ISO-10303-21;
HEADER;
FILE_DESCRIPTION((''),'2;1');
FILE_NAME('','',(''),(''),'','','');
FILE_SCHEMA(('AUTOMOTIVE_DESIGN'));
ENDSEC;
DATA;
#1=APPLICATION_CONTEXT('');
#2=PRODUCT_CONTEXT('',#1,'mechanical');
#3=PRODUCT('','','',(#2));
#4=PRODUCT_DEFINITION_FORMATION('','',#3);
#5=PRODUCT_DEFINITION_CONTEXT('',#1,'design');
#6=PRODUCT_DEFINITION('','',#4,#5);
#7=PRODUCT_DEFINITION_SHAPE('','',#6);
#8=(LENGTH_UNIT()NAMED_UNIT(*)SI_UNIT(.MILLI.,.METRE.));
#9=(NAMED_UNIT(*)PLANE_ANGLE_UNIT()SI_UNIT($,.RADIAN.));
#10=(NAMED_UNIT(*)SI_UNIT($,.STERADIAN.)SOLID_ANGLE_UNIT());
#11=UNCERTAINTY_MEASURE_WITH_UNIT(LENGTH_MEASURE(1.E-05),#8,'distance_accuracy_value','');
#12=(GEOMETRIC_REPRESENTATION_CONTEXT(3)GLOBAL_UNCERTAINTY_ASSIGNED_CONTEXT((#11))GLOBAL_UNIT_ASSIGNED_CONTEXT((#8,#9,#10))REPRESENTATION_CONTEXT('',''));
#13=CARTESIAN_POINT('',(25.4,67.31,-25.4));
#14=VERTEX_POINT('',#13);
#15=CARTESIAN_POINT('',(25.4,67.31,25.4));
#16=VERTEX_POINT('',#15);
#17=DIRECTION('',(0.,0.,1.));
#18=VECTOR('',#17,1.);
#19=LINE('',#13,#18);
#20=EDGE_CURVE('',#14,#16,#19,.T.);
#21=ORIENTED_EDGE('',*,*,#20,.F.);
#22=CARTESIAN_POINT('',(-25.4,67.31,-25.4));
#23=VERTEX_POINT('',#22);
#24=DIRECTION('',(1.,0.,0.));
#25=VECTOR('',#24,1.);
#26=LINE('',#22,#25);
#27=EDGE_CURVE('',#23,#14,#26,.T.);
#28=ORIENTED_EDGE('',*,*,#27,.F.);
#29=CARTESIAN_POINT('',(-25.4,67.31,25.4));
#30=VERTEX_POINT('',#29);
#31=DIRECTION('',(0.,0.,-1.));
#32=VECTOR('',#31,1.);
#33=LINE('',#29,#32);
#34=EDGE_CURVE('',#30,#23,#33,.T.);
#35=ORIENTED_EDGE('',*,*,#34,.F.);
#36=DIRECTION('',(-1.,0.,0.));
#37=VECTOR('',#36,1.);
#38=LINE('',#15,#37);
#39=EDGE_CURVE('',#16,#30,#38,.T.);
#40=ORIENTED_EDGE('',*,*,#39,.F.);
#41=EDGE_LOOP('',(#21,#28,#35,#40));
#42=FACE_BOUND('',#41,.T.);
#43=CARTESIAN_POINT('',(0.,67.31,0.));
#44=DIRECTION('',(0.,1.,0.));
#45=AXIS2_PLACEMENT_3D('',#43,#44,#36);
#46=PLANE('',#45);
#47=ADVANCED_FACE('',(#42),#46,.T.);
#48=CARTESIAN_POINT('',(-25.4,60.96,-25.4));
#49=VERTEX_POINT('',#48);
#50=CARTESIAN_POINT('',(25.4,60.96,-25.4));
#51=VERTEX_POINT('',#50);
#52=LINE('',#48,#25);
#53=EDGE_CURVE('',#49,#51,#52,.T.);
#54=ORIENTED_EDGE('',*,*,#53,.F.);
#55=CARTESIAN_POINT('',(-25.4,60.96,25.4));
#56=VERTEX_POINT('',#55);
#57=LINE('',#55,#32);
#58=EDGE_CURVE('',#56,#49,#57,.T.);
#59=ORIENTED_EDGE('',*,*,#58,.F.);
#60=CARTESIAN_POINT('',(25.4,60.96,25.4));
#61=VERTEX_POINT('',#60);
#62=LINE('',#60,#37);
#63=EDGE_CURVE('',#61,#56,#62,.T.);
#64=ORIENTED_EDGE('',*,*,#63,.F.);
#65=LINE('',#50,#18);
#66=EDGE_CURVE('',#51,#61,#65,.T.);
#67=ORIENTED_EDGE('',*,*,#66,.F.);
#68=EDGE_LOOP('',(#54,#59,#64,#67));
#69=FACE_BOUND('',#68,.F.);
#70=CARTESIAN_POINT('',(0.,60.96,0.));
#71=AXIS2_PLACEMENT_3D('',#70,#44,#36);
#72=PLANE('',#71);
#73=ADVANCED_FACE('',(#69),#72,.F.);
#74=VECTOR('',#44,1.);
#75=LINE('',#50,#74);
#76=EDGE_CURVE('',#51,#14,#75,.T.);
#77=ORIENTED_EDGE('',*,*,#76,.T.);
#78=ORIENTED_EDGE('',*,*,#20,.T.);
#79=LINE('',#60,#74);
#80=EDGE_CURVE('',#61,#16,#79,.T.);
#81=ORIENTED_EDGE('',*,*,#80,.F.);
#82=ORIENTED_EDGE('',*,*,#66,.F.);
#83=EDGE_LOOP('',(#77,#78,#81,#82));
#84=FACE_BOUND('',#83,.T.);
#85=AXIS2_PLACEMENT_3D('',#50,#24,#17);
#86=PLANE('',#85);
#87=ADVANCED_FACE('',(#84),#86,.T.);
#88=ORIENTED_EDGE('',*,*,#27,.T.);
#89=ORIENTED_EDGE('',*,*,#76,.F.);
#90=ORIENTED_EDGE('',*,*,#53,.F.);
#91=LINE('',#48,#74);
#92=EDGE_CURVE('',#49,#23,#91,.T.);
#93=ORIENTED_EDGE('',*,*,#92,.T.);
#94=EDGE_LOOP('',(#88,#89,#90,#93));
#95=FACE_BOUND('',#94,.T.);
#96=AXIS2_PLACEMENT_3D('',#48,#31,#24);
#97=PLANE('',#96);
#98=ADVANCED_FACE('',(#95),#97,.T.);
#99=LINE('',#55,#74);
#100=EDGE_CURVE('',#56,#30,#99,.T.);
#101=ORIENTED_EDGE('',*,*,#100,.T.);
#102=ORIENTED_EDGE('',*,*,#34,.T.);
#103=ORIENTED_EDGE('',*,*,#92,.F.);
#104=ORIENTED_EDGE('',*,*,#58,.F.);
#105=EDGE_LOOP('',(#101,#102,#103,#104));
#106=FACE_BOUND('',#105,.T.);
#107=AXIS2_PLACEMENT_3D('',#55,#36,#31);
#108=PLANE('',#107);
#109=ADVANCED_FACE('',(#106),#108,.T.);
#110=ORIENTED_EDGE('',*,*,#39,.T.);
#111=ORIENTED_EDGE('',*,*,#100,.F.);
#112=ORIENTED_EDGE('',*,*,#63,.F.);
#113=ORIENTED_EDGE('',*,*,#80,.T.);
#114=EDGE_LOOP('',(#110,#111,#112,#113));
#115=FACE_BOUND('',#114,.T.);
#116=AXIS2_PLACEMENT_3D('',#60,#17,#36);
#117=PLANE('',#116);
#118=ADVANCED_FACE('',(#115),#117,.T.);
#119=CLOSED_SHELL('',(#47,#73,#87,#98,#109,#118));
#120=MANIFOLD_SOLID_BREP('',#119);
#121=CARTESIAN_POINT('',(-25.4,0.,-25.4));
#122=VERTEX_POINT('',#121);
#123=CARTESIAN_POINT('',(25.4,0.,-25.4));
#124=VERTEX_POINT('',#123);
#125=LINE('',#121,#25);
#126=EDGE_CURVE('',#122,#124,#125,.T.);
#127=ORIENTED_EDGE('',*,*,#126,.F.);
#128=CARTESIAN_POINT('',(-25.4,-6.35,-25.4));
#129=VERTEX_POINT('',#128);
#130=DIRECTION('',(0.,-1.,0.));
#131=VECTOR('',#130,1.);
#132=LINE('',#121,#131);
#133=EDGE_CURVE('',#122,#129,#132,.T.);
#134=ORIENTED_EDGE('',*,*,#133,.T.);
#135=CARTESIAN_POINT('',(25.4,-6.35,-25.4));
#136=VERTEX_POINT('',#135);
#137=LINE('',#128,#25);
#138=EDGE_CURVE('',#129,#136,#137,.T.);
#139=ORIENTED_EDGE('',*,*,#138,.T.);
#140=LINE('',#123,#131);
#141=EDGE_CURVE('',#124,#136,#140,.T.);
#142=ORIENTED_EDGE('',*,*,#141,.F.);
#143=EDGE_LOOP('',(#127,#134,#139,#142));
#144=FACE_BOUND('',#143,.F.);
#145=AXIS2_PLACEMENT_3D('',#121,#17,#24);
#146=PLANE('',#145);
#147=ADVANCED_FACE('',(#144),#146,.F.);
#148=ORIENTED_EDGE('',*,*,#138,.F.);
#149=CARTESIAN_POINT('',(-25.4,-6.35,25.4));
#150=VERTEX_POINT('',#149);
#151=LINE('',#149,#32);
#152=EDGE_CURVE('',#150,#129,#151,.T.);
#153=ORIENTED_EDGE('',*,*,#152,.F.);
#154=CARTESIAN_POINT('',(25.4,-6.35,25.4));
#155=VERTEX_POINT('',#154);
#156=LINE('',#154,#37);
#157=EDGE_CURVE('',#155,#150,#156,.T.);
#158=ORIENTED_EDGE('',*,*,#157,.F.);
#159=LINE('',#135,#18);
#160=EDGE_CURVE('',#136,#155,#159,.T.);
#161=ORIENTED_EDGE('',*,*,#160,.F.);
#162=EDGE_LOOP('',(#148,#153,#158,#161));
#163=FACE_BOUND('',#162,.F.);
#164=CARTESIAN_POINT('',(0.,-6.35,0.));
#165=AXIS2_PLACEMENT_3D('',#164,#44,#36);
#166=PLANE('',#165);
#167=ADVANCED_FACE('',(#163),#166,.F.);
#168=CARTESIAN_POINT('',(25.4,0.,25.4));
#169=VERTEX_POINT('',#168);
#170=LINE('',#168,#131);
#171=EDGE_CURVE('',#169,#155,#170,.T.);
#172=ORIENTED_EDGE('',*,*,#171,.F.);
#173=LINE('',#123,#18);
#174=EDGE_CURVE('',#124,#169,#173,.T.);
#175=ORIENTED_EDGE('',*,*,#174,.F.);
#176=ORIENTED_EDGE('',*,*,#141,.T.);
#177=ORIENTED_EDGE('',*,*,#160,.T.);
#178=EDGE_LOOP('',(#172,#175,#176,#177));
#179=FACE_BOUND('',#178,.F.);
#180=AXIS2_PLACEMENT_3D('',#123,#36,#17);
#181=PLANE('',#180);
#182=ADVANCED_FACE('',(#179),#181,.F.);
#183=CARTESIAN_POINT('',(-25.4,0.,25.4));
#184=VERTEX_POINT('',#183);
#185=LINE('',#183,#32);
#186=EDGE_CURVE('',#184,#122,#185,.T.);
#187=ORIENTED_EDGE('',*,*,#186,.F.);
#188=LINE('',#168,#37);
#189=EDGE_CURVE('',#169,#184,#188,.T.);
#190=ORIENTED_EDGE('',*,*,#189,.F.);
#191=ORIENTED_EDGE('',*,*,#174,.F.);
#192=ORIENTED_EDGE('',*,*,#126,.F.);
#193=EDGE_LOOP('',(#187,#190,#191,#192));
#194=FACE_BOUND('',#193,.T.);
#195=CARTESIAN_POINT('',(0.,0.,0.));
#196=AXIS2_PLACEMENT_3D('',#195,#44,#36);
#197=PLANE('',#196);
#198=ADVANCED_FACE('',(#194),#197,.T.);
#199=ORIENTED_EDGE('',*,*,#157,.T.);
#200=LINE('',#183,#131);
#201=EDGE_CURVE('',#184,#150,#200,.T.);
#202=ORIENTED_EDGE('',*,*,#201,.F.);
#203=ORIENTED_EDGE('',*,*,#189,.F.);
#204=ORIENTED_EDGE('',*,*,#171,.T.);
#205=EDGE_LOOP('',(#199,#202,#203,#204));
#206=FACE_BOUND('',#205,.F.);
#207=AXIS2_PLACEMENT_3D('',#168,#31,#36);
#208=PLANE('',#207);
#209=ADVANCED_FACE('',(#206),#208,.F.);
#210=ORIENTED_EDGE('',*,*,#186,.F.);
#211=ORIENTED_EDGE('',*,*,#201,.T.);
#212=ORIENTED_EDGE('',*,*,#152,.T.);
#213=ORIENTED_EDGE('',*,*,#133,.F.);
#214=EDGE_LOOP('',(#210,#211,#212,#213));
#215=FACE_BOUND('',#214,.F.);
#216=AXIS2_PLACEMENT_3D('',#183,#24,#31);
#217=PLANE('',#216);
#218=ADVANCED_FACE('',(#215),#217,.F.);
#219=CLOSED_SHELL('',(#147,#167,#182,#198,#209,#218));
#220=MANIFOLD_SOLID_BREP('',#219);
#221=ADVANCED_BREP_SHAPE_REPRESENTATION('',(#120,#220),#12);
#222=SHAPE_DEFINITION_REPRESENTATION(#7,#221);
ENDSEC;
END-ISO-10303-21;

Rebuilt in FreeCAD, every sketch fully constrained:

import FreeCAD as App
import Part
import Sketcher
from FreeCAD import Vector
Q = App.Units.Quantity


def add_polygon(sketch, points):
    """Adds a closed chain of lines whose ends are joined by coincident constraints."""
    first, n = sketch.GeometryCount, len(points)
    for a, b in zip(points, points[1:] + points[:1]):
        sketch.addGeometry(Part.LineSegment(App.Vector(*a, 0), App.Vector(*b, 0)), False)
    for i in range(n):
        sketch.addConstraint(Sketcher.Constraint("Coincident", first + i, 2, first + (i + 1) % n, 1))

doc = App.newDocument("Part")
body = doc.addObject("PartDesign::Body", "Body")
body.AllowCompound = True

# Sketch on XZ plane
sketch1 = body.newObject("Sketcher::SketchObject", "Sketch")
sketch1.AttachmentSupport = (doc.getObject("XZ_Plane"), [""])
sketch1.MapMode = "FlatFace"
add_polygon(sketch1, [(-25, 25), (25, 25), (25, -25), (-25, -25)])  # lines 0-3
sketch1.addConstraint(Sketcher.Constraint("Horizontal", 0))
sketch1.addConstraint(Sketcher.Constraint("Vertical", 1))
sketch1.addConstraint(Sketcher.Constraint("Horizontal", 2))
sketch1.addConstraint(Sketcher.Constraint("Vertical", 3))
sketch1.addConstraint(Sketcher.Constraint("Symmetric", 0, 2, 2, 2, -1, 1))
sketch1.addConstraint(Sketcher.Constraint("Equal", 2, 1))
sketch1.addConstraint(Sketcher.Constraint("DistanceX", 0, 1, 0, 2, Q("2 in")))
pad1 = body.newObject("PartDesign::Pad", "Pad")
pad1.Profile = sketch1
pad1.Length = Q("0.25 in")

# Sketch on XZ plane
sketch2 = body.newObject("Sketcher::SketchObject", "Sketch001")
sketch2.AttachmentSupport = (doc.getObject("XZ_Plane"), [""])
sketch2.MapMode = "FlatFace"
sketch2.AttachmentOffset = App.Placement(Vector(0, 0, -2.4 * 25.4), App.Rotation())
add_polygon(sketch2, [(-25, 25), (25, 25), (25, -25), (-25, -25)])  # lines 0-3
sketch2.addConstraint(Sketcher.Constraint("Horizontal", 0))
sketch2.addConstraint(Sketcher.Constraint("Vertical", 1))
sketch2.addConstraint(Sketcher.Constraint("Horizontal", 2))
sketch2.addConstraint(Sketcher.Constraint("Vertical", 3))
sketch2.addConstraint(Sketcher.Constraint("Symmetric", 0, 2, 2, 2, -1, 1))
sketch2.addConstraint(Sketcher.Constraint("Equal", 2, 1))
sketch2.addConstraint(Sketcher.Constraint("DistanceX", 0, 1, 0, 2, Q("2 in")))
pad2 = body.newObject("PartDesign::Pad", "Pad001")
pad2.Profile = sketch2
pad2.Length = Q("0.25 in")
pad2.Reversed = True

doc.recompute()
